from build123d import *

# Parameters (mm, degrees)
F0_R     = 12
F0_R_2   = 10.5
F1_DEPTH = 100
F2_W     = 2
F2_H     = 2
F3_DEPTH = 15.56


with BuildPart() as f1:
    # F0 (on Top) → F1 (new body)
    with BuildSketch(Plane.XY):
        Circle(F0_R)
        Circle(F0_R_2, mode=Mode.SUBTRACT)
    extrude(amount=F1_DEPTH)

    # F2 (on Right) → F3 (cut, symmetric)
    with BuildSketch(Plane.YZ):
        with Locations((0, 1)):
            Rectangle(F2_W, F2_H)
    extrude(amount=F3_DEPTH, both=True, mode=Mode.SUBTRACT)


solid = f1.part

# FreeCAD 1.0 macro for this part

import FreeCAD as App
import Part
import Sketcher
from FreeCAD import Vector


def add_polygon(sketch, points):
    """Adds a closed chain of lines whose ends are joined by coincident constraints."""
    first, n = sketch.GeometryCount, len(points)
    for a, b in zip(points, points[1:] + points[:1]):
        sketch.addGeometry(Part.LineSegment(App.Vector(*a, 0), App.Vector(*b, 0)), False)
    for i in range(n):
        sketch.addConstraint(Sketcher.Constraint("Coincident", first + i, 2, first + (i + 1) % n, 1))

doc = App.newDocument("Part")
params = doc.addObject("Spreadsheet::Sheet", "Params")
for row, (alias, value) in enumerate([
    ("sketch1_diameter", "24 mm"),
    ("sketch1_diameter2", "21 mm"),
    ("pad1_length", "100 mm"),
    ("sketch2_width", "2 mm"),
    ("pocket1_length", "31.12 mm"),
], start=1):
    params.set(f"A{row}", alias)
    params.set(f"B{row}", "=" + value)
    params.setAlias(f"B{row}", alias)

body = doc.addObject("PartDesign::Body", "Body")

# Sketch on XY plane
sketch1 = doc.addObject("Sketcher::SketchObject", "Sketch")
body.addObject(sketch1)
sketch1.AttachmentSupport = (doc.XY_Plane, [""])
sketch1.MapMode = "FlatFace"
sketch1.addGeometry([
    Part.Circle(Vector(0, 0, 0), Vector(0, 0, 1), 12),
    Part.Circle(Vector(0, 0, 0), Vector(0, 0, 1), 10),
], False)
sketch1.addConstraint([
    Sketcher.Constraint("Coincident", 0, 3, -1, 1),
    Sketcher.Constraint("Coincident", 1, 3, -1, 1),
    Sketcher.Constraint("Diameter", 0, 24.0),
    Sketcher.Constraint("Diameter", 1, 21.0),
])
sketch1.setExpression("Constraints[2]", "Params.sketch1_diameter")
sketch1.setExpression("Constraints[3]", "Params.sketch1_diameter2")
pad1 = doc.addObject("PartDesign::Pad", "Pad")
body.addObject(pad1)
pad1.Profile = sketch1
pad1.setExpression("Length", "Params.pad1_length")

# Sketch on YZ plane
sketch2 = doc.addObject("Sketcher::SketchObject", "Sketch001")
body.addObject(sketch2)
sketch2.AttachmentSupport = (doc.YZ_Plane, [""])
sketch2.MapMode = "FlatFace"
add_polygon(sketch2, [(-1, 2), (-1, 0), (1, 0), (1, 2)])  # lines 0-3
sketch2.addConstraint([
    Sketcher.Constraint("Vertical", 0),
    Sketcher.Constraint("Horizontal", 1),
    Sketcher.Constraint("Vertical", 2),
    Sketcher.Constraint("Horizontal", 3),
    Sketcher.Constraint("Symmetric", 0, 2, 1, 2, -1, 1),
    Sketcher.Constraint("Equal", 3, 0),
    Sketcher.Constraint("DistanceX", 1, 1, 1, 2, 2.0),
])
sketch2.setExpression("Constraints[10]", "Params.sketch2_width")
pocket1 = doc.addObject("PartDesign::Pocket", "Pocket")
body.addObject(pocket1)
pocket1.Profile = sketch2
pocket1.setExpression("Length", "Params.pocket1_length")
pocket1.Midplane = True

doc.recompute()
